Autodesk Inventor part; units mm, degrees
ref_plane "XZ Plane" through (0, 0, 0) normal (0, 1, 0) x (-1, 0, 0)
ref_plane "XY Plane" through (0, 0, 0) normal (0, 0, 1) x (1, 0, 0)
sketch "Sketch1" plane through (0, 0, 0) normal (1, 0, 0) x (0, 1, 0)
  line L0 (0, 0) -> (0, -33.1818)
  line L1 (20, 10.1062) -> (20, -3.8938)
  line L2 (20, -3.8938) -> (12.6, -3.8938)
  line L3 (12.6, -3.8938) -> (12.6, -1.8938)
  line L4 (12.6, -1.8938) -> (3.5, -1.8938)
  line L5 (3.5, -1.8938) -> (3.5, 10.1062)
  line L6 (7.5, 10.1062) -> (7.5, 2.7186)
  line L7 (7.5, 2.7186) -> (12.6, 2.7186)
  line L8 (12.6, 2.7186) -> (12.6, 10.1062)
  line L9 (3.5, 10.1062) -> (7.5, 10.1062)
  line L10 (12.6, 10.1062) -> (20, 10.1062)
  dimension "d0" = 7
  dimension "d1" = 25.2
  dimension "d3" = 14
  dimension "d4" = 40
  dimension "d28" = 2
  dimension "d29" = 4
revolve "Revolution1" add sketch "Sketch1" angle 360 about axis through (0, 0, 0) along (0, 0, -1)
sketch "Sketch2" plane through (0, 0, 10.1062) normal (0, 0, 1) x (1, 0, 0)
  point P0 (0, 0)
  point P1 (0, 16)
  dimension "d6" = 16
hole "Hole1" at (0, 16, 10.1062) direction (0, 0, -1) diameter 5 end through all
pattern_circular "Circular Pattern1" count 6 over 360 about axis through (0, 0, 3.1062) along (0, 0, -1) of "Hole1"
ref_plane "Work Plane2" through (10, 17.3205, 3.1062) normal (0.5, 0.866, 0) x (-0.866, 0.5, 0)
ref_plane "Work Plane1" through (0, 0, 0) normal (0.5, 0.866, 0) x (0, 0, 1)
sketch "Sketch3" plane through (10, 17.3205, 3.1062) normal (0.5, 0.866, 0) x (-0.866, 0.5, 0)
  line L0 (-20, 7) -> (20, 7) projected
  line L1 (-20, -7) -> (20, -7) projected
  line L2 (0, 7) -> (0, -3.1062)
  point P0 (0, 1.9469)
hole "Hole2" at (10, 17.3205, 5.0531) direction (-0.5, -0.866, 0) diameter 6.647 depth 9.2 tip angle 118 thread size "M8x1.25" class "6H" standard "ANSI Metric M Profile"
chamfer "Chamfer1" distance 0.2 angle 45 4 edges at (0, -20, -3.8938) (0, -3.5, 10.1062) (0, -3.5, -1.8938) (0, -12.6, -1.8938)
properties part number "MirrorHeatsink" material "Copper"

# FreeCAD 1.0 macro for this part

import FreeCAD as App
import Part
import Sketcher

V = App.Vector
Q = App.Units.Quantity


def edges_at(feature, points):
    """Names of the edges that pass closest to the given points."""
    edges = feature.Shape.Edges
    near = lambda p: min(range(len(edges)), key=lambda i: edges[i].distToShape(Part.Vertex(*p))[0])
    return sorted({f"Edge{near(p) + 1}" for p in points})

doc = App.newDocument("Part")
params = doc.addObject("Spreadsheet::Sheet", "Params")
for row, (alias, value) in enumerate([
    ("sketch1_width", "4 mm"),
    ("sketch1_height", "14 mm"),
    ("sketch1_height2", "2 mm"),
    ("sketch1_width2", "7.4 mm"),
    ("sketch1_width3", "5.1 mm"),
    ("revolution_angle", "360 deg"),
    ("sketch2_diameter", "5 mm"),
    ("hole_diameter", "5 mm"),
    ("hole2_diameter", "6.647 mm"),
    ("hole2_depth", "9.2 mm"),
    ("chamfer_size", "0.2 mm"),
], start=1):
    params.set(f"A{row}", alias)
    params.set(f"B{row}", "=" + value)
    params.setAlias(f"B{row}", alias)

body = doc.addObject("PartDesign::Body", "Body")

# Sketch on YZ plane
sketch1 = body.newObject("Sketcher::SketchObject", "Sketch")
sketch1.AttachmentSupport = (doc.getObject("YZ_Plane"), [""])
sketch1.MapMode = "FlatFace"
sketch1.addGeometry([
    Part.LineSegment(V(20, -3.9, 0), V(20, 10.1, 0)),  # 0
    Part.LineSegment(V(20, 10.1, 0), V(12.6, 10.1, 0)),  # 1
    Part.LineSegment(V(12.6, 10.1, 0), V(12.6, 2.7, 0)),  # 2
    Part.LineSegment(V(12.6, 2.7, 0), V(7.5, 2.7, 0)),  # 3
    Part.LineSegment(V(7.5, 2.7, 0), V(7.5, 10.1, 0)),  # 4
    Part.LineSegment(V(7.5, 10.1, 0), V(3.5, 10.1, 0)),  # 5
    Part.LineSegment(V(3.5, 10.1, 0), V(3.5, -1.9, 0)),  # 6
    Part.LineSegment(V(3.5, -1.9, 0), V(12.6, -1.9, 0)),  # 7
    Part.LineSegment(V(12.6, -1.9, 0), V(12.6, -3.9, 0)),  # 8
    Part.LineSegment(V(12.6, -3.9, 0), V(20, -3.9, 0)),  # 9
], False)
sketch1.addConstraint([
    Sketcher.Constraint("Coincident", 0, 2, 1, 1),
    Sketcher.Constraint("Coincident", 1, 2, 2, 1),
    Sketcher.Constraint("Coincident", 2, 2, 3, 1),
    Sketcher.Constraint("Coincident", 3, 2, 4, 1),
    Sketcher.Constraint("Coincident", 4, 2, 5, 1),
    Sketcher.Constraint("Coincident", 5, 2, 6, 1),
    Sketcher.Constraint("Coincident", 6, 2, 7, 1),
    Sketcher.Constraint("Coincident", 7, 2, 8, 1),
    Sketcher.Constraint("Coincident", 8, 2, 9, 1),
    Sketcher.Constraint("Coincident", 9, 2, 0, 1),
    Sketcher.Constraint("Vertical", 0),
    Sketcher.Constraint("Horizontal", 1),
    Sketcher.Constraint("Vertical", 2),
    Sketcher.Constraint("Horizontal", 3),
    Sketcher.Constraint("Vertical", 4),
    Sketcher.Constraint("Horizontal", 5),
    Sketcher.Constraint("Vertical", 6),
    Sketcher.Constraint("Horizontal", 7),
    Sketcher.Constraint("Vertical", 8),
    Sketcher.Constraint("Horizontal", 9),
    Sketcher.Constraint("Horizontal", 1, 2, 4, 2),
    Sketcher.Constraint("Vertical", 2, 2, 7, 2),
    Sketcher.Constraint("DistanceX", 5, 2, 5, 1, Q("4 mm")),
    Sketcher.Constraint("DistanceY", 0, 1, 0, 2, Q("14 mm")),
    Sketcher.Constraint("DistanceY", 8, 2, 8, 1, Q("2 mm")),
    Sketcher.Constraint("DistanceX", 1, 2, 1, 1, Q("7.4 mm")),
    Sketcher.Constraint("DistanceX", 3, 2, 3, 1, Q("5.1 mm")),
    Sketcher.Constraint("DistanceX", -1, 1, 0, 2, Q("20 mm")),
    Sketcher.Constraint("DistanceY", 2, 2, 2, 1, Q("7.3876 mm")),
    Sketcher.Constraint("DistanceY", -1, 1, 0, 2, Q("10.1062 mm")),
])
sketch1.setExpression("Constraints[22]", "Params.sketch1_width")
sketch1.setExpression("Constraints[23]", "Params.sketch1_height")
sketch1.setExpression("Constraints[24]", "Params.sketch1_height2")
sketch1.setExpression("Constraints[25]", "Params.sketch1_width2")
sketch1.setExpression("Constraints[26]", "Params.sketch1_width3")
revolution = body.newObject("PartDesign::Revolution", "Revolution")
revolution.Profile = sketch1
revolution.ReferenceAxis = (sketch1, ["V_Axis"])
revolution.setExpression("Angle", "Params.revolution_angle")

# Sketch on XY plane
sketch2 = body.newObject("Sketcher::SketchObject", "Sketch001")
sketch2.AttachmentSupport = (doc.getObject("XY_Plane"), [""])
sketch2.MapMode = "FlatFace"
sketch2.AttachmentOffset = App.Placement(V(0, 0, 10.1062), App.Rotation())
sketch2.addGeometry(Part.Circle(V(0, 16, 0), V(0, 0, 1), 2.5), False)
sketch2.addConstraint([
    Sketcher.Constraint("PointOnObject", 0, 3, -2),
    Sketcher.Constraint("Diameter", 0, Q("5 mm")),
    Sketcher.Constraint("DistanceY", -1, 1, 0, 3, Q("16 mm")),
])
sketch2.setExpression("Constraints[1]", "Params.sketch2_diameter")
doc.recompute()
hole = body.newObject("PartDesign::Hole", "Hole")
hole.Profile = sketch2
hole.ThreadType = "None"
hole.setExpression("Diameter", "Params.hole_diameter")
hole.DepthType = "ThroughAll"
doc.recompute()

polarpattern = body.newObject("PartDesign::PolarPattern", "PolarPattern")
polarpattern.Originals = [hole]
polarpattern.Axis = (doc.getObject("Z_Axis"), [""])
polarpattern.Angle = 360
polarpattern.Occurrences = 6
body.Tip = polarpattern

# Sketch on an angled plane
sketch3 = body.newObject("Sketcher::SketchObject", "Sketch002")
sketch3.Placement = App.Placement(V(9.999997, 17.320502, 0), App.Rotation(V(-0.866025404, 0.5, 0), V(0, 0, 1), V(0.5, 0.866025404, 0), "ZXY"))
sketch3.addGeometry(Part.Circle(V(0, 5.1, 0), V(0, 0, 1), 3.3), False)
sketch3.addConstraint([
    Sketcher.Constraint("PointOnObject", 0, 3, -2),
    Sketcher.Constraint("Diameter", 0, Q("6.647 mm")),
    Sketcher.Constraint("DistanceY", -1, 1, 0, 3, Q("5.053 mm")),
])
doc.recompute()
hole2 = body.newObject("PartDesign::Hole", "Hole001")
hole2.Profile = sketch3
hole2.ThreadType = "None"
hole2.setExpression("Diameter", "Params.hole2_diameter")
hole2.DepthType = "Dimension"
hole2.setExpression("Depth", "Params.hole2_depth")
hole2.DrillPoint = "Angled"
hole2.DrillPointAngle = 118
doc.recompute()

chamfer = body.newObject("PartDesign::Chamfer", "Chamfer")
chamfer.Base = (hole2, edges_at(hole2, [
    (0, -20, -3.894),
    (0, -3.5, 10.106),
    (0, -3.5, -1.894),
    (0, -12.6, -1.894),
]))
chamfer.setExpression("Size", "Params.chamfer_size")

doc.recompute()
